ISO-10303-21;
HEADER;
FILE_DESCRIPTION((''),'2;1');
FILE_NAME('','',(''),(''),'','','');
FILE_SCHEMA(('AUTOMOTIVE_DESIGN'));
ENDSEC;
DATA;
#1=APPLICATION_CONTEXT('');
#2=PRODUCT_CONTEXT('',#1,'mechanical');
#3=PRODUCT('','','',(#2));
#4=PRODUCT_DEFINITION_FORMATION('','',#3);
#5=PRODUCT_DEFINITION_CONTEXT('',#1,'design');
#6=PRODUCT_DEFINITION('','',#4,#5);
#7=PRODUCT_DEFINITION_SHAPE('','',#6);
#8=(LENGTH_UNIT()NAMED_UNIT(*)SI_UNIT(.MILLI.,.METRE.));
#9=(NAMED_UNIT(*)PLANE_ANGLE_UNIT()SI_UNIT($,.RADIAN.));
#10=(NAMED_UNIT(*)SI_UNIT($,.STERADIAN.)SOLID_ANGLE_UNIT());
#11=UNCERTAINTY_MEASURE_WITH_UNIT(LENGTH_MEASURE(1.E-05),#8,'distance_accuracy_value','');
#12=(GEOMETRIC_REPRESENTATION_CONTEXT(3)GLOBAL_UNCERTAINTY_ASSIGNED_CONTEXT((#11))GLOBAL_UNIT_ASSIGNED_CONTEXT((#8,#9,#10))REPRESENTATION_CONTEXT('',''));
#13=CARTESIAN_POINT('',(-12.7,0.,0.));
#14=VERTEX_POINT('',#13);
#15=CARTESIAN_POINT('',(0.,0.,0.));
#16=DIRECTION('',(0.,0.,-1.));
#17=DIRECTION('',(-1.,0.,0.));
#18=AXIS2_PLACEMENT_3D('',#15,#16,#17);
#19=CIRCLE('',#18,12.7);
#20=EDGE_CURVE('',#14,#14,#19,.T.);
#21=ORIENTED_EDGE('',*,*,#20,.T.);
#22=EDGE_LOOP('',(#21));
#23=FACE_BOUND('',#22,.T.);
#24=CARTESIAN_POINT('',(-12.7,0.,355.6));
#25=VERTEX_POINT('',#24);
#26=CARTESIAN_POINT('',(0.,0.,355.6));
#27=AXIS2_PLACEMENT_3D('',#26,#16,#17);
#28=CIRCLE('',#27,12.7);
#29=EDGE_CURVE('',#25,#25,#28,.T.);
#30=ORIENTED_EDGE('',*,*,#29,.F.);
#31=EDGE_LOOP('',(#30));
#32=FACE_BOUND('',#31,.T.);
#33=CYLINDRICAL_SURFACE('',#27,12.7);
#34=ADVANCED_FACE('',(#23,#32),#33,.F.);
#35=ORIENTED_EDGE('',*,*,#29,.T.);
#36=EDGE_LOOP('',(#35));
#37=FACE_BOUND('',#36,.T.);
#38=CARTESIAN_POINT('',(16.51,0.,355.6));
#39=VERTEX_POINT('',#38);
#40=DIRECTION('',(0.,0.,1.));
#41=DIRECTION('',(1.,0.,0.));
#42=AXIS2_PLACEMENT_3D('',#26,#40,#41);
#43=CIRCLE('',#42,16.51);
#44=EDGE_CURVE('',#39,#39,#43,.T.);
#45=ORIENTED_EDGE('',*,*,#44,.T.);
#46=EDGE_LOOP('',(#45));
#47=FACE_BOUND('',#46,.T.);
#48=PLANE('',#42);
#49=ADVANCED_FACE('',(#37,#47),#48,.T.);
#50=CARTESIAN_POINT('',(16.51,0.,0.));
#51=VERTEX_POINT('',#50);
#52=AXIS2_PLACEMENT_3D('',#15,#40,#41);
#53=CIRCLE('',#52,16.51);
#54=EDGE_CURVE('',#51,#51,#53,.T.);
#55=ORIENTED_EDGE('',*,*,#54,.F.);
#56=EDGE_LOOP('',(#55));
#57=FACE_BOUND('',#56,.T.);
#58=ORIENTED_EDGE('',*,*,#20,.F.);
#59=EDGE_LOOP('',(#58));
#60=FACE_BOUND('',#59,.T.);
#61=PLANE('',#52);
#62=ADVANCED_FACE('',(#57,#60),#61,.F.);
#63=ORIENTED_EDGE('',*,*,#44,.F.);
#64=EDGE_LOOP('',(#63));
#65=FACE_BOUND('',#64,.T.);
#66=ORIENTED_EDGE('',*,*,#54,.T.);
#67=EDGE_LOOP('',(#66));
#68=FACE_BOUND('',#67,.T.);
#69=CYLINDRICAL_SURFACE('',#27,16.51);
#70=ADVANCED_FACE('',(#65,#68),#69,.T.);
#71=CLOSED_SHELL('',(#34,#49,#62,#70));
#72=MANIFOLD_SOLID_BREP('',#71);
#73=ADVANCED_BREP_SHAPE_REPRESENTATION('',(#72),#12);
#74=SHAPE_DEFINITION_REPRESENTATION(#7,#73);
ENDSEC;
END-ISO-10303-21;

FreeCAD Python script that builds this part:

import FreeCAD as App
import Part
import Sketcher
from FreeCAD import Vector
Q = App.Units.Quantity

doc = App.newDocument("Part")
body = doc.addObject("PartDesign::Body", "Body")

# Sketch on XY plane
sketch1 = doc.addObject("Sketcher::SketchObject", "Sketch")
body.addObject(sketch1)
sketch1.AttachmentSupport = (doc.XY_Plane, [""])
sketch1.MapMode = "FlatFace"
sketch1.addGeometry(Part.Circle(Vector(0, 0, 0), Vector(0, 0, 1), 16.51), False)
sketch1.addConstraint(Sketcher.Constraint("Coincident", 0, 3, -1, 1))
sketch1.addConstraint(Sketcher.Constraint("Diameter", 0, Q("1.3 in")))
pad1 = doc.addObject("PartDesign::Pad", "Pad")
body.addObject(pad1)
pad1.Profile = sketch1
pad1.Length = Q("14 in")

# Sketch on XY plane
sketch2 = doc.addObject("Sketcher::SketchObject", "Sketch001")
body.addObject(sketch2)
sketch2.AttachmentSupport = (doc.XY_Plane, [""])
sketch2.MapMode = "FlatFace"
sketch2.addGeometry(Part.Circle(Vector(0, 0, 0), Vector(0, 0, 1), 12.7), False)
sketch2.addConstraint(Sketcher.Constraint("Coincident", 0, 3, -1, 1))
sketch2.addConstraint(Sketcher.Constraint("Diameter", 0, Q("1 in")))
pocket1 = doc.addObject("PartDesign::Pocket", "Pocket")
body.addObject(pocket1)
pocket1.Profile = sketch2
pocket1.Length = Q("14 in")
pocket1.Reversed = True

doc.recompute()
